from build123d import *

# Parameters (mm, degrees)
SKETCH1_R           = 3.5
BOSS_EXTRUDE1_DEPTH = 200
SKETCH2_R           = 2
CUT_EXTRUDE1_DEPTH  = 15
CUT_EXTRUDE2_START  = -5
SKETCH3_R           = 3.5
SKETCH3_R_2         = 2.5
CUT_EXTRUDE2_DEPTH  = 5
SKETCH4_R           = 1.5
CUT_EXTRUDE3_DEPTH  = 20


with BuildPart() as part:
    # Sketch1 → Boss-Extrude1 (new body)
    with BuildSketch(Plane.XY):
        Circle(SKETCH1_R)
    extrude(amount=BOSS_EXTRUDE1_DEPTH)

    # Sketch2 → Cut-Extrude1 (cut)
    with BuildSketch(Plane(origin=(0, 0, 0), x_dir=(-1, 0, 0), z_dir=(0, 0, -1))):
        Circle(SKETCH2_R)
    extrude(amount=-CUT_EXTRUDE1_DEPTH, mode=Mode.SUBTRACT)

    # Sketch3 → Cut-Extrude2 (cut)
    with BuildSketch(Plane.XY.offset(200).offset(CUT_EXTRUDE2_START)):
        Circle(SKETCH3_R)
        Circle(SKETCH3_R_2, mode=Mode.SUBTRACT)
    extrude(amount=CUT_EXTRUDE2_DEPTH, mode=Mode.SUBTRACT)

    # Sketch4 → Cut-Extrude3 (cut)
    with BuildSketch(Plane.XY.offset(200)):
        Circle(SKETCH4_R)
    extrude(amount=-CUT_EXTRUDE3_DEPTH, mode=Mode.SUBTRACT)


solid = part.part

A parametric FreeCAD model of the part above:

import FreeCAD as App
import Part
import Sketcher

doc = App.newDocument("Part")
body = doc.addObject("PartDesign::Body", "Body")

sketch1 = body.newObject("Sketcher::SketchObject", "Sketch")
sketch1.AttachmentSupport = (doc.getObject("XY_Plane"), [""])
sketch1.MapMode = "FlatFace"
sketch1.addGeometry(Part.Circle(App.Vector(0, 0, 0), App.Vector(0, 0, 1), 3.5), False)
sketch1.addConstraint([
    Sketcher.Constraint("Coincident", 0, 3, -1, 1),
    Sketcher.Constraint("Diameter", 0, 7.0),
])
pad1 = body.newObject("PartDesign::Pad", "Pad")
pad1.Profile = sketch1
pad1.Length = 200

sketch2 = body.newObject("Sketcher::SketchObject", "Sketch001")
sketch2.AttachmentSupport = (doc.getObject("XY_Plane"), [""])
sketch2.MapMode = "FlatFace"
sketch2.addGeometry(Part.Circle(App.Vector(0, 0, 0), App.Vector(0, 0, 1), 2), False)
sketch2.addConstraint([
    Sketcher.Constraint("Coincident", 0, 3, -1, 1),
    Sketcher.Constraint("Diameter", 0, 4.0),
])
pocket1 = body.newObject("PartDesign::Pocket", "Pocket")
pocket1.Profile = sketch2
pocket1.Length = 15
pocket1.Reversed = True

sketch3 = body.newObject("Sketcher::SketchObject", "Sketch002")
sketch3.AttachmentSupport = (doc.getObject("XY_Plane"), [""])
sketch3.MapMode = "FlatFace"
sketch3.AttachmentOffset = App.Placement(App.Vector(0, 0, 195), App.Rotation())
sketch3.addGeometry([
    Part.Circle(App.Vector(0, 0, 0), App.Vector(0, 0, 1), 3.5),
    Part.Circle(App.Vector(0, 0, 0), App.Vector(0, 0, 1), 2.5),
], False)
sketch3.addConstraint([
    Sketcher.Constraint("Coincident", 0, 3, -1, 1),
    Sketcher.Constraint("Coincident", 1, 3, -1, 1),
    Sketcher.Constraint("Diameter", 0, 7.0),
    Sketcher.Constraint("Diameter", 1, 5.0),
])
pocket2 = body.newObject("PartDesign::Pocket", "Pocket001")
pocket2.Profile = sketch3
pocket2.Length = 5
pocket2.Reversed = True

sketch4 = body.newObject("Sketcher::SketchObject", "Sketch003")
sketch4.AttachmentSupport = (doc.getObject("XY_Plane"), [""])
sketch4.MapMode = "FlatFace"
sketch4.AttachmentOffset = App.Placement(App.Vector(0, 0, 200), App.Rotation())
sketch4.addGeometry(Part.Circle(App.Vector(0, 0, 0), App.Vector(0, 0, 1), 1.5), False)
sketch4.addConstraint([
    Sketcher.Constraint("Coincident", 0, 3, -1, 1),
    Sketcher.Constraint("Diameter", 0, 3.0),
])
pocket3 = body.newObject("PartDesign::Pocket", "Pocket002")
pocket3.Profile = sketch4
pocket3.Length = 20

doc.recompute()
